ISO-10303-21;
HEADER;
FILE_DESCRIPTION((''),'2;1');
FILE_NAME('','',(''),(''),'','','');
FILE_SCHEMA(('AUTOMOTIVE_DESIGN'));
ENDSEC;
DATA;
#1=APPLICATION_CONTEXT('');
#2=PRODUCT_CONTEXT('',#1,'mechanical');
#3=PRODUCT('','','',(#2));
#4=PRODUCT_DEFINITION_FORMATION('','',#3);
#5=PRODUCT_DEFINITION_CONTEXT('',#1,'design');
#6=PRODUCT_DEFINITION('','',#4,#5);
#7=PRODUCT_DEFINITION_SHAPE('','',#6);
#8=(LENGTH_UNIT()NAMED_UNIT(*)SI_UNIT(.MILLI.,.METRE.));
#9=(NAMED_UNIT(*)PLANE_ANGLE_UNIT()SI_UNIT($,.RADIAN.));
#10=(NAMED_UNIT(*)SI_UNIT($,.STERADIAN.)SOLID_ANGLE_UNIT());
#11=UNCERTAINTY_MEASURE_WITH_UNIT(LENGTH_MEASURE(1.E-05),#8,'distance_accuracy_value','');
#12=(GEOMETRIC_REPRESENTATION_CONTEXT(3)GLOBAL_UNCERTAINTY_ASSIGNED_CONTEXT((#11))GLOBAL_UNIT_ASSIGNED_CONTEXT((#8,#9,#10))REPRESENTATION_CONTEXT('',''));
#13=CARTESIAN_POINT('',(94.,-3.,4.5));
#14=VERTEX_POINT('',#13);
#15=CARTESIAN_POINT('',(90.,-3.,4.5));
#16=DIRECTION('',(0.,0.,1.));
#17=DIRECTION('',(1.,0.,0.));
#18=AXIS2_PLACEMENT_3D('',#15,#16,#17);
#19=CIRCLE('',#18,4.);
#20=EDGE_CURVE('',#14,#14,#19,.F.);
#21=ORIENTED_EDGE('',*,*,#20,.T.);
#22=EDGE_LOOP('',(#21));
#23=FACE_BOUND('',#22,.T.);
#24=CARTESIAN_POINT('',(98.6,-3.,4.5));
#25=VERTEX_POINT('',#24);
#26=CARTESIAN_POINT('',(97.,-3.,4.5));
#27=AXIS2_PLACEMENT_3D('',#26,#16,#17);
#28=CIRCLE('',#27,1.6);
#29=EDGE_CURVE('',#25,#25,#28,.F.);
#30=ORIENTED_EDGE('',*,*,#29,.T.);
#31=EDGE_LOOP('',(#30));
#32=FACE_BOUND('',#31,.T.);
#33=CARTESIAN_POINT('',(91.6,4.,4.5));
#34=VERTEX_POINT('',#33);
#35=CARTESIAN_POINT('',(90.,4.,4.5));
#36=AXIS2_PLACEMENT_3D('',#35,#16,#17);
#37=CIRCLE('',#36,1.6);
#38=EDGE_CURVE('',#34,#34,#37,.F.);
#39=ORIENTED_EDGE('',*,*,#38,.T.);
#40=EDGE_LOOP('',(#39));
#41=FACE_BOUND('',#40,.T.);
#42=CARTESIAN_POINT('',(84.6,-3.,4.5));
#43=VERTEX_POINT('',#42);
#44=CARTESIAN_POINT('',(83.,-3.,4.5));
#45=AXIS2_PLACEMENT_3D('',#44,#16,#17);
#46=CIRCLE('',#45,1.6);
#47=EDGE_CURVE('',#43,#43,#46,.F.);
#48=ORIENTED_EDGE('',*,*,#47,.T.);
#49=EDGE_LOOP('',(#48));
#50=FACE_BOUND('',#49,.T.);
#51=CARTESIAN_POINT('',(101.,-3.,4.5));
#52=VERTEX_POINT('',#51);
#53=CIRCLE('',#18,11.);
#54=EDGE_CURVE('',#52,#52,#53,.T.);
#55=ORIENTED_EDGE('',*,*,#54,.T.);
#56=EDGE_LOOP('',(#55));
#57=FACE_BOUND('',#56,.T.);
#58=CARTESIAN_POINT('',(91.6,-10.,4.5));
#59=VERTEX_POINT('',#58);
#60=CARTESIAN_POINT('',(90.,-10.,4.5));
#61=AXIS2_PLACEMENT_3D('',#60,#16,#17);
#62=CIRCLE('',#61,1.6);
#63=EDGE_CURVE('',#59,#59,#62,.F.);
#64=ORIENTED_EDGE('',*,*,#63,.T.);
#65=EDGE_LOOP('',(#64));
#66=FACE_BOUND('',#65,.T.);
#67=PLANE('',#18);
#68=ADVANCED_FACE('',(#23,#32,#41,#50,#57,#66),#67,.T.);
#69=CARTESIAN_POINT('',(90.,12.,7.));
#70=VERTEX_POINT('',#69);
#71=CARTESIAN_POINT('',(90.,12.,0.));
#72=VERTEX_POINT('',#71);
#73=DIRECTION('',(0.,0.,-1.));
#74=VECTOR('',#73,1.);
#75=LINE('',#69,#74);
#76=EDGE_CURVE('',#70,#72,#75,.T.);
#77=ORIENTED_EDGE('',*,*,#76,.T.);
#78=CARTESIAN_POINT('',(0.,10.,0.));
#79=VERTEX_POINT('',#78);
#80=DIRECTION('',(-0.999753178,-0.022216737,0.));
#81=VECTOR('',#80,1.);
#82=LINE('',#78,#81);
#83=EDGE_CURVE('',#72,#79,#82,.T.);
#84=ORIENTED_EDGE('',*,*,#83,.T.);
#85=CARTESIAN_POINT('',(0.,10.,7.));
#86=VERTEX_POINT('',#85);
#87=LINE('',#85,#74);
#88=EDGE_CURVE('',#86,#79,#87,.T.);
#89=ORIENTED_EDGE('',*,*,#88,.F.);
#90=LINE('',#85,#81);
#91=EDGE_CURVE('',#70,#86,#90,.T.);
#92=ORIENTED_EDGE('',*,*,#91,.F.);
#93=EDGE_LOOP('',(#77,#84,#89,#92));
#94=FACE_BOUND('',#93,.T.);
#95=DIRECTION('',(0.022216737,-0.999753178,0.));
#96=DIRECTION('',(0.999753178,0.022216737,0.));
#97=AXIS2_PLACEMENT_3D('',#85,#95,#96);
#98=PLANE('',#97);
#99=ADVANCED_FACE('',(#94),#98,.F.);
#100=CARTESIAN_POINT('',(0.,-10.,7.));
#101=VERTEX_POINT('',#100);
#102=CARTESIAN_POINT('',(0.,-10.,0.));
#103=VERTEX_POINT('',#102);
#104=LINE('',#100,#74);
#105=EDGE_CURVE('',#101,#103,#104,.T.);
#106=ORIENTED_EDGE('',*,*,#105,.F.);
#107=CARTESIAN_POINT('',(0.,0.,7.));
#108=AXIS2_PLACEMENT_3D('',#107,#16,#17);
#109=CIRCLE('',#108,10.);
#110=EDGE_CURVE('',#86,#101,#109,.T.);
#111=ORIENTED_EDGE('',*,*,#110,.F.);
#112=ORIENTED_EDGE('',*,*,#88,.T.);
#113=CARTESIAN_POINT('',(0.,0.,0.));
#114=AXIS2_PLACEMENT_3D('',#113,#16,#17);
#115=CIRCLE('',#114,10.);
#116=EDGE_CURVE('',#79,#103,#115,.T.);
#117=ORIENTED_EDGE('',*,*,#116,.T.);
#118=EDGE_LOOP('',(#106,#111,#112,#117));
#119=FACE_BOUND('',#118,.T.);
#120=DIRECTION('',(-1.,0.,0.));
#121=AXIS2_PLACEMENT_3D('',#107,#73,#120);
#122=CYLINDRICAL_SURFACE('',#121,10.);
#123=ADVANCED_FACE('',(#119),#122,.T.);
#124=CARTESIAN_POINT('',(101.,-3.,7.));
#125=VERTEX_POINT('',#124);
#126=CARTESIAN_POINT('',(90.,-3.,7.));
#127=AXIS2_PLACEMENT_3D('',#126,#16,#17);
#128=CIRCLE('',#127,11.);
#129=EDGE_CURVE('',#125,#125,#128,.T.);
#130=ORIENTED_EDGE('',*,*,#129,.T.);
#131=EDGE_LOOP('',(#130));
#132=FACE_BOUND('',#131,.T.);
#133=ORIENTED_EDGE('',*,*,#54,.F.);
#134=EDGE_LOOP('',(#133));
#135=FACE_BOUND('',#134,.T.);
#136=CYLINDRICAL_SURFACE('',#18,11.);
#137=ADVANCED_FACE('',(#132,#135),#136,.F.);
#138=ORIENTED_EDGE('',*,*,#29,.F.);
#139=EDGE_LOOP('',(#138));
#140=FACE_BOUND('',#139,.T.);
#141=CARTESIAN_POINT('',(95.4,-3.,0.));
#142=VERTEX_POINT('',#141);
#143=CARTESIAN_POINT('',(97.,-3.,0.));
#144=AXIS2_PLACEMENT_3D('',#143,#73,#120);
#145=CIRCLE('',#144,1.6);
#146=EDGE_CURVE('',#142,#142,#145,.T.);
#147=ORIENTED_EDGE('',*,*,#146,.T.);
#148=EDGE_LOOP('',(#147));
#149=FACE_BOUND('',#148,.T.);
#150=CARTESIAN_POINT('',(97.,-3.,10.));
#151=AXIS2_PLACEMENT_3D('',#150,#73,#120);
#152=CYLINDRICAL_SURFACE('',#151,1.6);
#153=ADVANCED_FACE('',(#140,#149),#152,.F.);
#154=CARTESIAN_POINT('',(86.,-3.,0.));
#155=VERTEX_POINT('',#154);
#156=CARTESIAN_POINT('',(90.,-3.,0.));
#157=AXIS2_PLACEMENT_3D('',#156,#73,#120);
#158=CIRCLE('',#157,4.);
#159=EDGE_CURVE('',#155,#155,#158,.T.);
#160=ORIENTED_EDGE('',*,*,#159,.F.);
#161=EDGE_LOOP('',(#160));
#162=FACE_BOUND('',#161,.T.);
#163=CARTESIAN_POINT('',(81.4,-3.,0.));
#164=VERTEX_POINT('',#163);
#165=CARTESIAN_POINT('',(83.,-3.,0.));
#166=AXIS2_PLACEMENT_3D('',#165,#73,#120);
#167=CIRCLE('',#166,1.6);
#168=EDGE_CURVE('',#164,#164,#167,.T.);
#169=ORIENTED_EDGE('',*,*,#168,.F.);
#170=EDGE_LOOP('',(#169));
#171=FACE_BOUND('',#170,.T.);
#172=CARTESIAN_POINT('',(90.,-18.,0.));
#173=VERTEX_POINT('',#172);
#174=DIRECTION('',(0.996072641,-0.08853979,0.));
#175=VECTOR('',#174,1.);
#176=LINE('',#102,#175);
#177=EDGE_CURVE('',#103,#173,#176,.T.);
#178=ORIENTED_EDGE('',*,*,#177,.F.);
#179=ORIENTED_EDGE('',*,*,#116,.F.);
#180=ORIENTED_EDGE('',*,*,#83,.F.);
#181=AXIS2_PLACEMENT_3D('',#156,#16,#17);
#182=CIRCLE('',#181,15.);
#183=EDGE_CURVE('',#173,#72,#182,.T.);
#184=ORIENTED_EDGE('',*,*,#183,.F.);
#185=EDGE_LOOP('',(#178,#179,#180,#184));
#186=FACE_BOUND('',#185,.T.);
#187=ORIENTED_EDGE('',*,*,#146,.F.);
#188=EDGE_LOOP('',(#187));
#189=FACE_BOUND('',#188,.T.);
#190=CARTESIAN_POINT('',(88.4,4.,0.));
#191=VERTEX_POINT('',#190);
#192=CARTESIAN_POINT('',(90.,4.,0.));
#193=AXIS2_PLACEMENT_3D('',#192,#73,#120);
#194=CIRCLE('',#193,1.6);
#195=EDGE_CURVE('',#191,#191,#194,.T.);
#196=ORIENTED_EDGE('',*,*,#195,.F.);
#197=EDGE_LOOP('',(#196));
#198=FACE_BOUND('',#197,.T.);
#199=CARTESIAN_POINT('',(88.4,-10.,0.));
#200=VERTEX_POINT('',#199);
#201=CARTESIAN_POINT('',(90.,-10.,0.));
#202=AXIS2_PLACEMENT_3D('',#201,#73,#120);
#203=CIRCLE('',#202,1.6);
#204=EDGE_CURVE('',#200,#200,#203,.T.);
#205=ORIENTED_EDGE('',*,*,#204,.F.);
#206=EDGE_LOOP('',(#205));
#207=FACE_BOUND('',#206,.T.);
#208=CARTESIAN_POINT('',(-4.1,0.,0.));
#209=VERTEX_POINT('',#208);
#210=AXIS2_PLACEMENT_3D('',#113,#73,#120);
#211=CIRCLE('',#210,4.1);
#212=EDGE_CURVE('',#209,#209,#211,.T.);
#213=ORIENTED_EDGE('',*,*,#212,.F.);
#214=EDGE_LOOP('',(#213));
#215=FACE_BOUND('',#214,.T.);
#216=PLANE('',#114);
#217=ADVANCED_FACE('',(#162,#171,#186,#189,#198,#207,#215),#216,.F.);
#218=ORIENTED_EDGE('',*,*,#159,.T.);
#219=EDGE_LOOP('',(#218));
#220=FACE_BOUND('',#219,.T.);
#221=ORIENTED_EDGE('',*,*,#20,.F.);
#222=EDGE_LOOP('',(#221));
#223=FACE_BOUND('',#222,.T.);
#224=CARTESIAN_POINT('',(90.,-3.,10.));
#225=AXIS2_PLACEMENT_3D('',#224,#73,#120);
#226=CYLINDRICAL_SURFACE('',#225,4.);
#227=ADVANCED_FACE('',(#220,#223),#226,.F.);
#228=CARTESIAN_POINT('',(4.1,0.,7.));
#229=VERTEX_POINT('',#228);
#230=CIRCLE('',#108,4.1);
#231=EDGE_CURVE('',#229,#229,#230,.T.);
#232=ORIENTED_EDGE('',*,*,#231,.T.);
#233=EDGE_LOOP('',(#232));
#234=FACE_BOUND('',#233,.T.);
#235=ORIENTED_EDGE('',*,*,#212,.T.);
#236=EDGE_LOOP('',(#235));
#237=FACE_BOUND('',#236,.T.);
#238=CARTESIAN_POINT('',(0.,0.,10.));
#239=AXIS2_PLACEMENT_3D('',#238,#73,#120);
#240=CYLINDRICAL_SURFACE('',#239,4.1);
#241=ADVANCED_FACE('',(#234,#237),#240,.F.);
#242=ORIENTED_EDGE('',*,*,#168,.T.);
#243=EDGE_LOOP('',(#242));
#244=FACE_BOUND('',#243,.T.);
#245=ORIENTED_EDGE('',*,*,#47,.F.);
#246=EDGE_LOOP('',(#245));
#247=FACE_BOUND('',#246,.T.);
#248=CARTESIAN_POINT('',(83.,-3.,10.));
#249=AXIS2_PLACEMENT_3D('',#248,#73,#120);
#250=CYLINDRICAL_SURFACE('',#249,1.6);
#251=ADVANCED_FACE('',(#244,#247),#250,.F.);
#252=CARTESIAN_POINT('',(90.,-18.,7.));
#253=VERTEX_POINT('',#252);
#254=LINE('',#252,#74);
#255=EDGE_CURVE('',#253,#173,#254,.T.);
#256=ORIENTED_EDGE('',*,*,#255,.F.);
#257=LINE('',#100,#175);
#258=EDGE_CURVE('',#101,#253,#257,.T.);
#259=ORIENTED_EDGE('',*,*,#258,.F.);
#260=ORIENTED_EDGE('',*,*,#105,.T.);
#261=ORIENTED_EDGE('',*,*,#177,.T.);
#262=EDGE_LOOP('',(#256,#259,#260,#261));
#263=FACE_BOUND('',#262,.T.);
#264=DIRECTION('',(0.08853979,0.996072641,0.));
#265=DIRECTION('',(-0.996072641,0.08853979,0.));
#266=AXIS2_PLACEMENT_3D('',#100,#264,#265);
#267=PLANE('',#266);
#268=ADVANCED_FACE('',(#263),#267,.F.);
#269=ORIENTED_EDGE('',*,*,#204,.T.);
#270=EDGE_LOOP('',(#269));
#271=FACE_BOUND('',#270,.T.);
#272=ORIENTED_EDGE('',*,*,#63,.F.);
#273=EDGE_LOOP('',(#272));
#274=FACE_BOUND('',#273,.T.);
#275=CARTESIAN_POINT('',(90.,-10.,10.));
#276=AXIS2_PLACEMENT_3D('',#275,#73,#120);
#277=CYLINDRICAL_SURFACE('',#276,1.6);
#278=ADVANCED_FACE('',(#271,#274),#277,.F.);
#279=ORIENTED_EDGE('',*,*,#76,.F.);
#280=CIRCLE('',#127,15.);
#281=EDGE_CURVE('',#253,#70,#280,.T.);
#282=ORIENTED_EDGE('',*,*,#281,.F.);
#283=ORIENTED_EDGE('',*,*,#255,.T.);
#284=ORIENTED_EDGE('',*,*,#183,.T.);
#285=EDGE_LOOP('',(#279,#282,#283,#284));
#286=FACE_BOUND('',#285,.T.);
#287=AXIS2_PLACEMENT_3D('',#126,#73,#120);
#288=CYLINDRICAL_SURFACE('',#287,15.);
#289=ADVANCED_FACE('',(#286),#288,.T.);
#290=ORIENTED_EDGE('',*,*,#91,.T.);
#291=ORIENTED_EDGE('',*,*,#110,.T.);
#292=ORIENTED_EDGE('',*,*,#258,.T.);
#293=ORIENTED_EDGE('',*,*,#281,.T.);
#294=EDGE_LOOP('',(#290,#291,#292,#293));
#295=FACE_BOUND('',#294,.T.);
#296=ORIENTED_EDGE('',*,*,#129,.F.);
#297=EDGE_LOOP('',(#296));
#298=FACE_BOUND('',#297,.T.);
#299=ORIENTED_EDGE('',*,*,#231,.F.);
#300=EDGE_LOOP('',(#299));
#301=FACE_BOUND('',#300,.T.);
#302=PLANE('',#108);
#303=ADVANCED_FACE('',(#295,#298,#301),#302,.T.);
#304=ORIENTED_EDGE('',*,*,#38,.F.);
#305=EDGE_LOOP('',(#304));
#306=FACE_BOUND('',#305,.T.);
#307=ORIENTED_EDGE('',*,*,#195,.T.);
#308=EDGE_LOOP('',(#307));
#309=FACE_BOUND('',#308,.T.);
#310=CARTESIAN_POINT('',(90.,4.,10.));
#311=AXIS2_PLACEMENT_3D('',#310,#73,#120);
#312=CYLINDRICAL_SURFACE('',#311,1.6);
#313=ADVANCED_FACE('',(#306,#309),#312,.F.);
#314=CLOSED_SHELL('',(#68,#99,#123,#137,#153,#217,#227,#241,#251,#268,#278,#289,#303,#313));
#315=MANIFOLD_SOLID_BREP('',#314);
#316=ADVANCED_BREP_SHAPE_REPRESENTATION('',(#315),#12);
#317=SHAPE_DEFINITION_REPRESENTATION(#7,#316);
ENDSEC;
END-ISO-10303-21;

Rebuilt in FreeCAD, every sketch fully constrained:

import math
import FreeCAD as App
import Part
import Sketcher

V = App.Vector
Q = App.Units.Quantity

doc = App.newDocument("Part")
body = doc.addObject("PartDesign::Body", "Body")

# Sketch on XY plane
sketch1 = doc.addObject("Sketcher::SketchObject", "Sketch")
body.addObject(sketch1)
sketch1.AttachmentSupport = (doc.XY_Plane, [""])
sketch1.MapMode = "FlatFace"
sketch1.addGeometry(Part.LineSegment(V(0, -10, 0), V(90, -18, 0)), False)
sketch1.addGeometry(Part.ArcOfCircle(Part.Circle(V(90, -3, 0), V(0, 0, 1), 15), math.radians(-90), math.radians(90)), False)
sketch1.addGeometry(Part.LineSegment(V(90, 12, 0), V(0, 10, 0)), False)
sketch1.addGeometry(Part.ArcOfCircle(Part.Circle(V(0, 0, 0), V(0, 0, 1), 10), math.radians(90), math.radians(270)), False)
sketch1.addConstraint(Sketcher.Constraint("Coincident", 0, 2, 1, 1))
sketch1.addConstraint(Sketcher.Constraint("Coincident", 1, 2, 2, 1))
sketch1.addConstraint(Sketcher.Constraint("Coincident", 2, 2, 3, 1))
sketch1.addConstraint(Sketcher.Constraint("Coincident", 3, 2, 0, 1))
sketch1.addConstraint(Sketcher.Constraint("Coincident", 3, 3, -1, 1))
sketch1.addConstraint(Sketcher.Constraint("PointOnObject", 2, 2, -2))
sketch1.addConstraint(Sketcher.Constraint("PointOnObject", 3, 2, -2))
sketch1.addConstraint(Sketcher.Constraint("Vertical", 1, 3, 0, 2))
sketch1.addConstraint(Sketcher.Constraint("Vertical", 0, 2, 1, 2))
sketch1.addConstraint(Sketcher.Constraint("Radius", 1, Q("15 mm")))
sketch1.addConstraint(Sketcher.Constraint("Radius", 3, Q("10 mm")))
sketch1.addConstraint(Sketcher.Constraint("DistanceX", -1, 1, 1, 3, Q("90 mm")))
sketch1.addConstraint(Sketcher.Constraint("DistanceY", 1, 3, -1, 1, Q("3 mm")))
pad1 = doc.addObject("PartDesign::Pad", "Pad")
body.addObject(pad1)
pad1.Profile = sketch1
pad1.Length = 7

# Sketch on XY plane
sketch2 = doc.addObject("Sketcher::SketchObject", "Sketch001")
body.addObject(sketch2)
sketch2.AttachmentSupport = (doc.XY_Plane, [""])
sketch2.MapMode = "FlatFace"
sketch2.addGeometry(Part.Circle(V(0, 0, 0), V(0, 0, 1), 4.1), False)
sketch2.addGeometry(Part.Circle(V(90, -10, 0), V(0, 0, 1), 1.6), False)
sketch2.addGeometry(Part.Circle(V(83, -3, 0), V(0, 0, 1), 1.6), False)
sketch2.addGeometry(Part.Circle(V(90, 4, 0), V(0, 0, 1), 1.6), False)
sketch2.addGeometry(Part.Circle(V(97, -3, 0), V(0, 0, 1), 1.6), False)
sketch2.addGeometry(Part.Circle(V(90, -3, 0), V(0, 0, 1), 4), False)
sketch2.addConstraint(Sketcher.Constraint("Coincident", 0, 3, -1, 1))
sketch2.addConstraint(Sketcher.Constraint("Equal", 1, 2))
sketch2.addConstraint(Sketcher.Constraint("Equal", 2, 3))
sketch2.addConstraint(Sketcher.Constraint("Equal", 3, 4))
sketch2.addConstraint(Sketcher.Constraint("Horizontal", 2, 3, 4, 3))
sketch2.addConstraint(Sketcher.Constraint("Horizontal", 4, 3, 5, 3))
sketch2.addConstraint(Sketcher.Constraint("Vertical", 1, 3, 3, 3))
sketch2.addConstraint(Sketcher.Constraint("Vertical", 3, 3, 5, 3))
sketch2.addConstraint(Sketcher.Constraint("Diameter", 5, Q("8 mm")))
sketch2.addConstraint(Sketcher.Constraint("Diameter", 0, Q("8.2 mm")))
sketch2.addConstraint(Sketcher.Constraint("Diameter", 1, Q("3.2 mm")))
sketch2.addConstraint(Sketcher.Constraint("DistanceX", -1, 1, 1, 3, Q("90 mm")))
sketch2.addConstraint(Sketcher.Constraint("DistanceY", 1, 3, -1, 1, Q("10 mm")))
sketch2.addConstraint(Sketcher.Constraint("DistanceX", -1, 1, 2, 3, Q("83 mm")))
sketch2.addConstraint(Sketcher.Constraint("DistanceY", 2, 3, -1, 1, Q("3 mm")))
sketch2.addConstraint(Sketcher.Constraint("DistanceY", -1, 1, 3, 3, Q("4 mm")))
sketch2.addConstraint(Sketcher.Constraint("DistanceX", -1, 1, 4, 3, Q("97 mm")))
pocket1 = doc.addObject("PartDesign::Pocket", "Pocket")
body.addObject(pocket1)
pocket1.Profile = sketch2
pocket1.Length = 10
pocket1.Reversed = True

# Sketch on XY plane
sketch3 = doc.addObject("Sketcher::SketchObject", "Sketch002")
body.addObject(sketch3)
sketch3.AttachmentSupport = (doc.XY_Plane, [""])
sketch3.MapMode = "FlatFace"
sketch3.AttachmentOffset = App.Placement(V(0, 0, 7), App.Rotation())
sketch3.addGeometry(Part.Circle(V(90, -3, 0), V(0, 0, 1), 11), False)
sketch3.addConstraint(Sketcher.Constraint("Diameter", 0, Q("22 mm")))
sketch3.addConstraint(Sketcher.Constraint("DistanceX", -1, 1, 0, 3, Q("90 mm")))
sketch3.addConstraint(Sketcher.Constraint("DistanceY", 0, 3, -1, 1, Q("3 mm")))
pocket2 = doc.addObject("PartDesign::Pocket", "Pocket001")
body.addObject(pocket2)
pocket2.Profile = sketch3
pocket2.Length = 2.5

doc.recompute()
